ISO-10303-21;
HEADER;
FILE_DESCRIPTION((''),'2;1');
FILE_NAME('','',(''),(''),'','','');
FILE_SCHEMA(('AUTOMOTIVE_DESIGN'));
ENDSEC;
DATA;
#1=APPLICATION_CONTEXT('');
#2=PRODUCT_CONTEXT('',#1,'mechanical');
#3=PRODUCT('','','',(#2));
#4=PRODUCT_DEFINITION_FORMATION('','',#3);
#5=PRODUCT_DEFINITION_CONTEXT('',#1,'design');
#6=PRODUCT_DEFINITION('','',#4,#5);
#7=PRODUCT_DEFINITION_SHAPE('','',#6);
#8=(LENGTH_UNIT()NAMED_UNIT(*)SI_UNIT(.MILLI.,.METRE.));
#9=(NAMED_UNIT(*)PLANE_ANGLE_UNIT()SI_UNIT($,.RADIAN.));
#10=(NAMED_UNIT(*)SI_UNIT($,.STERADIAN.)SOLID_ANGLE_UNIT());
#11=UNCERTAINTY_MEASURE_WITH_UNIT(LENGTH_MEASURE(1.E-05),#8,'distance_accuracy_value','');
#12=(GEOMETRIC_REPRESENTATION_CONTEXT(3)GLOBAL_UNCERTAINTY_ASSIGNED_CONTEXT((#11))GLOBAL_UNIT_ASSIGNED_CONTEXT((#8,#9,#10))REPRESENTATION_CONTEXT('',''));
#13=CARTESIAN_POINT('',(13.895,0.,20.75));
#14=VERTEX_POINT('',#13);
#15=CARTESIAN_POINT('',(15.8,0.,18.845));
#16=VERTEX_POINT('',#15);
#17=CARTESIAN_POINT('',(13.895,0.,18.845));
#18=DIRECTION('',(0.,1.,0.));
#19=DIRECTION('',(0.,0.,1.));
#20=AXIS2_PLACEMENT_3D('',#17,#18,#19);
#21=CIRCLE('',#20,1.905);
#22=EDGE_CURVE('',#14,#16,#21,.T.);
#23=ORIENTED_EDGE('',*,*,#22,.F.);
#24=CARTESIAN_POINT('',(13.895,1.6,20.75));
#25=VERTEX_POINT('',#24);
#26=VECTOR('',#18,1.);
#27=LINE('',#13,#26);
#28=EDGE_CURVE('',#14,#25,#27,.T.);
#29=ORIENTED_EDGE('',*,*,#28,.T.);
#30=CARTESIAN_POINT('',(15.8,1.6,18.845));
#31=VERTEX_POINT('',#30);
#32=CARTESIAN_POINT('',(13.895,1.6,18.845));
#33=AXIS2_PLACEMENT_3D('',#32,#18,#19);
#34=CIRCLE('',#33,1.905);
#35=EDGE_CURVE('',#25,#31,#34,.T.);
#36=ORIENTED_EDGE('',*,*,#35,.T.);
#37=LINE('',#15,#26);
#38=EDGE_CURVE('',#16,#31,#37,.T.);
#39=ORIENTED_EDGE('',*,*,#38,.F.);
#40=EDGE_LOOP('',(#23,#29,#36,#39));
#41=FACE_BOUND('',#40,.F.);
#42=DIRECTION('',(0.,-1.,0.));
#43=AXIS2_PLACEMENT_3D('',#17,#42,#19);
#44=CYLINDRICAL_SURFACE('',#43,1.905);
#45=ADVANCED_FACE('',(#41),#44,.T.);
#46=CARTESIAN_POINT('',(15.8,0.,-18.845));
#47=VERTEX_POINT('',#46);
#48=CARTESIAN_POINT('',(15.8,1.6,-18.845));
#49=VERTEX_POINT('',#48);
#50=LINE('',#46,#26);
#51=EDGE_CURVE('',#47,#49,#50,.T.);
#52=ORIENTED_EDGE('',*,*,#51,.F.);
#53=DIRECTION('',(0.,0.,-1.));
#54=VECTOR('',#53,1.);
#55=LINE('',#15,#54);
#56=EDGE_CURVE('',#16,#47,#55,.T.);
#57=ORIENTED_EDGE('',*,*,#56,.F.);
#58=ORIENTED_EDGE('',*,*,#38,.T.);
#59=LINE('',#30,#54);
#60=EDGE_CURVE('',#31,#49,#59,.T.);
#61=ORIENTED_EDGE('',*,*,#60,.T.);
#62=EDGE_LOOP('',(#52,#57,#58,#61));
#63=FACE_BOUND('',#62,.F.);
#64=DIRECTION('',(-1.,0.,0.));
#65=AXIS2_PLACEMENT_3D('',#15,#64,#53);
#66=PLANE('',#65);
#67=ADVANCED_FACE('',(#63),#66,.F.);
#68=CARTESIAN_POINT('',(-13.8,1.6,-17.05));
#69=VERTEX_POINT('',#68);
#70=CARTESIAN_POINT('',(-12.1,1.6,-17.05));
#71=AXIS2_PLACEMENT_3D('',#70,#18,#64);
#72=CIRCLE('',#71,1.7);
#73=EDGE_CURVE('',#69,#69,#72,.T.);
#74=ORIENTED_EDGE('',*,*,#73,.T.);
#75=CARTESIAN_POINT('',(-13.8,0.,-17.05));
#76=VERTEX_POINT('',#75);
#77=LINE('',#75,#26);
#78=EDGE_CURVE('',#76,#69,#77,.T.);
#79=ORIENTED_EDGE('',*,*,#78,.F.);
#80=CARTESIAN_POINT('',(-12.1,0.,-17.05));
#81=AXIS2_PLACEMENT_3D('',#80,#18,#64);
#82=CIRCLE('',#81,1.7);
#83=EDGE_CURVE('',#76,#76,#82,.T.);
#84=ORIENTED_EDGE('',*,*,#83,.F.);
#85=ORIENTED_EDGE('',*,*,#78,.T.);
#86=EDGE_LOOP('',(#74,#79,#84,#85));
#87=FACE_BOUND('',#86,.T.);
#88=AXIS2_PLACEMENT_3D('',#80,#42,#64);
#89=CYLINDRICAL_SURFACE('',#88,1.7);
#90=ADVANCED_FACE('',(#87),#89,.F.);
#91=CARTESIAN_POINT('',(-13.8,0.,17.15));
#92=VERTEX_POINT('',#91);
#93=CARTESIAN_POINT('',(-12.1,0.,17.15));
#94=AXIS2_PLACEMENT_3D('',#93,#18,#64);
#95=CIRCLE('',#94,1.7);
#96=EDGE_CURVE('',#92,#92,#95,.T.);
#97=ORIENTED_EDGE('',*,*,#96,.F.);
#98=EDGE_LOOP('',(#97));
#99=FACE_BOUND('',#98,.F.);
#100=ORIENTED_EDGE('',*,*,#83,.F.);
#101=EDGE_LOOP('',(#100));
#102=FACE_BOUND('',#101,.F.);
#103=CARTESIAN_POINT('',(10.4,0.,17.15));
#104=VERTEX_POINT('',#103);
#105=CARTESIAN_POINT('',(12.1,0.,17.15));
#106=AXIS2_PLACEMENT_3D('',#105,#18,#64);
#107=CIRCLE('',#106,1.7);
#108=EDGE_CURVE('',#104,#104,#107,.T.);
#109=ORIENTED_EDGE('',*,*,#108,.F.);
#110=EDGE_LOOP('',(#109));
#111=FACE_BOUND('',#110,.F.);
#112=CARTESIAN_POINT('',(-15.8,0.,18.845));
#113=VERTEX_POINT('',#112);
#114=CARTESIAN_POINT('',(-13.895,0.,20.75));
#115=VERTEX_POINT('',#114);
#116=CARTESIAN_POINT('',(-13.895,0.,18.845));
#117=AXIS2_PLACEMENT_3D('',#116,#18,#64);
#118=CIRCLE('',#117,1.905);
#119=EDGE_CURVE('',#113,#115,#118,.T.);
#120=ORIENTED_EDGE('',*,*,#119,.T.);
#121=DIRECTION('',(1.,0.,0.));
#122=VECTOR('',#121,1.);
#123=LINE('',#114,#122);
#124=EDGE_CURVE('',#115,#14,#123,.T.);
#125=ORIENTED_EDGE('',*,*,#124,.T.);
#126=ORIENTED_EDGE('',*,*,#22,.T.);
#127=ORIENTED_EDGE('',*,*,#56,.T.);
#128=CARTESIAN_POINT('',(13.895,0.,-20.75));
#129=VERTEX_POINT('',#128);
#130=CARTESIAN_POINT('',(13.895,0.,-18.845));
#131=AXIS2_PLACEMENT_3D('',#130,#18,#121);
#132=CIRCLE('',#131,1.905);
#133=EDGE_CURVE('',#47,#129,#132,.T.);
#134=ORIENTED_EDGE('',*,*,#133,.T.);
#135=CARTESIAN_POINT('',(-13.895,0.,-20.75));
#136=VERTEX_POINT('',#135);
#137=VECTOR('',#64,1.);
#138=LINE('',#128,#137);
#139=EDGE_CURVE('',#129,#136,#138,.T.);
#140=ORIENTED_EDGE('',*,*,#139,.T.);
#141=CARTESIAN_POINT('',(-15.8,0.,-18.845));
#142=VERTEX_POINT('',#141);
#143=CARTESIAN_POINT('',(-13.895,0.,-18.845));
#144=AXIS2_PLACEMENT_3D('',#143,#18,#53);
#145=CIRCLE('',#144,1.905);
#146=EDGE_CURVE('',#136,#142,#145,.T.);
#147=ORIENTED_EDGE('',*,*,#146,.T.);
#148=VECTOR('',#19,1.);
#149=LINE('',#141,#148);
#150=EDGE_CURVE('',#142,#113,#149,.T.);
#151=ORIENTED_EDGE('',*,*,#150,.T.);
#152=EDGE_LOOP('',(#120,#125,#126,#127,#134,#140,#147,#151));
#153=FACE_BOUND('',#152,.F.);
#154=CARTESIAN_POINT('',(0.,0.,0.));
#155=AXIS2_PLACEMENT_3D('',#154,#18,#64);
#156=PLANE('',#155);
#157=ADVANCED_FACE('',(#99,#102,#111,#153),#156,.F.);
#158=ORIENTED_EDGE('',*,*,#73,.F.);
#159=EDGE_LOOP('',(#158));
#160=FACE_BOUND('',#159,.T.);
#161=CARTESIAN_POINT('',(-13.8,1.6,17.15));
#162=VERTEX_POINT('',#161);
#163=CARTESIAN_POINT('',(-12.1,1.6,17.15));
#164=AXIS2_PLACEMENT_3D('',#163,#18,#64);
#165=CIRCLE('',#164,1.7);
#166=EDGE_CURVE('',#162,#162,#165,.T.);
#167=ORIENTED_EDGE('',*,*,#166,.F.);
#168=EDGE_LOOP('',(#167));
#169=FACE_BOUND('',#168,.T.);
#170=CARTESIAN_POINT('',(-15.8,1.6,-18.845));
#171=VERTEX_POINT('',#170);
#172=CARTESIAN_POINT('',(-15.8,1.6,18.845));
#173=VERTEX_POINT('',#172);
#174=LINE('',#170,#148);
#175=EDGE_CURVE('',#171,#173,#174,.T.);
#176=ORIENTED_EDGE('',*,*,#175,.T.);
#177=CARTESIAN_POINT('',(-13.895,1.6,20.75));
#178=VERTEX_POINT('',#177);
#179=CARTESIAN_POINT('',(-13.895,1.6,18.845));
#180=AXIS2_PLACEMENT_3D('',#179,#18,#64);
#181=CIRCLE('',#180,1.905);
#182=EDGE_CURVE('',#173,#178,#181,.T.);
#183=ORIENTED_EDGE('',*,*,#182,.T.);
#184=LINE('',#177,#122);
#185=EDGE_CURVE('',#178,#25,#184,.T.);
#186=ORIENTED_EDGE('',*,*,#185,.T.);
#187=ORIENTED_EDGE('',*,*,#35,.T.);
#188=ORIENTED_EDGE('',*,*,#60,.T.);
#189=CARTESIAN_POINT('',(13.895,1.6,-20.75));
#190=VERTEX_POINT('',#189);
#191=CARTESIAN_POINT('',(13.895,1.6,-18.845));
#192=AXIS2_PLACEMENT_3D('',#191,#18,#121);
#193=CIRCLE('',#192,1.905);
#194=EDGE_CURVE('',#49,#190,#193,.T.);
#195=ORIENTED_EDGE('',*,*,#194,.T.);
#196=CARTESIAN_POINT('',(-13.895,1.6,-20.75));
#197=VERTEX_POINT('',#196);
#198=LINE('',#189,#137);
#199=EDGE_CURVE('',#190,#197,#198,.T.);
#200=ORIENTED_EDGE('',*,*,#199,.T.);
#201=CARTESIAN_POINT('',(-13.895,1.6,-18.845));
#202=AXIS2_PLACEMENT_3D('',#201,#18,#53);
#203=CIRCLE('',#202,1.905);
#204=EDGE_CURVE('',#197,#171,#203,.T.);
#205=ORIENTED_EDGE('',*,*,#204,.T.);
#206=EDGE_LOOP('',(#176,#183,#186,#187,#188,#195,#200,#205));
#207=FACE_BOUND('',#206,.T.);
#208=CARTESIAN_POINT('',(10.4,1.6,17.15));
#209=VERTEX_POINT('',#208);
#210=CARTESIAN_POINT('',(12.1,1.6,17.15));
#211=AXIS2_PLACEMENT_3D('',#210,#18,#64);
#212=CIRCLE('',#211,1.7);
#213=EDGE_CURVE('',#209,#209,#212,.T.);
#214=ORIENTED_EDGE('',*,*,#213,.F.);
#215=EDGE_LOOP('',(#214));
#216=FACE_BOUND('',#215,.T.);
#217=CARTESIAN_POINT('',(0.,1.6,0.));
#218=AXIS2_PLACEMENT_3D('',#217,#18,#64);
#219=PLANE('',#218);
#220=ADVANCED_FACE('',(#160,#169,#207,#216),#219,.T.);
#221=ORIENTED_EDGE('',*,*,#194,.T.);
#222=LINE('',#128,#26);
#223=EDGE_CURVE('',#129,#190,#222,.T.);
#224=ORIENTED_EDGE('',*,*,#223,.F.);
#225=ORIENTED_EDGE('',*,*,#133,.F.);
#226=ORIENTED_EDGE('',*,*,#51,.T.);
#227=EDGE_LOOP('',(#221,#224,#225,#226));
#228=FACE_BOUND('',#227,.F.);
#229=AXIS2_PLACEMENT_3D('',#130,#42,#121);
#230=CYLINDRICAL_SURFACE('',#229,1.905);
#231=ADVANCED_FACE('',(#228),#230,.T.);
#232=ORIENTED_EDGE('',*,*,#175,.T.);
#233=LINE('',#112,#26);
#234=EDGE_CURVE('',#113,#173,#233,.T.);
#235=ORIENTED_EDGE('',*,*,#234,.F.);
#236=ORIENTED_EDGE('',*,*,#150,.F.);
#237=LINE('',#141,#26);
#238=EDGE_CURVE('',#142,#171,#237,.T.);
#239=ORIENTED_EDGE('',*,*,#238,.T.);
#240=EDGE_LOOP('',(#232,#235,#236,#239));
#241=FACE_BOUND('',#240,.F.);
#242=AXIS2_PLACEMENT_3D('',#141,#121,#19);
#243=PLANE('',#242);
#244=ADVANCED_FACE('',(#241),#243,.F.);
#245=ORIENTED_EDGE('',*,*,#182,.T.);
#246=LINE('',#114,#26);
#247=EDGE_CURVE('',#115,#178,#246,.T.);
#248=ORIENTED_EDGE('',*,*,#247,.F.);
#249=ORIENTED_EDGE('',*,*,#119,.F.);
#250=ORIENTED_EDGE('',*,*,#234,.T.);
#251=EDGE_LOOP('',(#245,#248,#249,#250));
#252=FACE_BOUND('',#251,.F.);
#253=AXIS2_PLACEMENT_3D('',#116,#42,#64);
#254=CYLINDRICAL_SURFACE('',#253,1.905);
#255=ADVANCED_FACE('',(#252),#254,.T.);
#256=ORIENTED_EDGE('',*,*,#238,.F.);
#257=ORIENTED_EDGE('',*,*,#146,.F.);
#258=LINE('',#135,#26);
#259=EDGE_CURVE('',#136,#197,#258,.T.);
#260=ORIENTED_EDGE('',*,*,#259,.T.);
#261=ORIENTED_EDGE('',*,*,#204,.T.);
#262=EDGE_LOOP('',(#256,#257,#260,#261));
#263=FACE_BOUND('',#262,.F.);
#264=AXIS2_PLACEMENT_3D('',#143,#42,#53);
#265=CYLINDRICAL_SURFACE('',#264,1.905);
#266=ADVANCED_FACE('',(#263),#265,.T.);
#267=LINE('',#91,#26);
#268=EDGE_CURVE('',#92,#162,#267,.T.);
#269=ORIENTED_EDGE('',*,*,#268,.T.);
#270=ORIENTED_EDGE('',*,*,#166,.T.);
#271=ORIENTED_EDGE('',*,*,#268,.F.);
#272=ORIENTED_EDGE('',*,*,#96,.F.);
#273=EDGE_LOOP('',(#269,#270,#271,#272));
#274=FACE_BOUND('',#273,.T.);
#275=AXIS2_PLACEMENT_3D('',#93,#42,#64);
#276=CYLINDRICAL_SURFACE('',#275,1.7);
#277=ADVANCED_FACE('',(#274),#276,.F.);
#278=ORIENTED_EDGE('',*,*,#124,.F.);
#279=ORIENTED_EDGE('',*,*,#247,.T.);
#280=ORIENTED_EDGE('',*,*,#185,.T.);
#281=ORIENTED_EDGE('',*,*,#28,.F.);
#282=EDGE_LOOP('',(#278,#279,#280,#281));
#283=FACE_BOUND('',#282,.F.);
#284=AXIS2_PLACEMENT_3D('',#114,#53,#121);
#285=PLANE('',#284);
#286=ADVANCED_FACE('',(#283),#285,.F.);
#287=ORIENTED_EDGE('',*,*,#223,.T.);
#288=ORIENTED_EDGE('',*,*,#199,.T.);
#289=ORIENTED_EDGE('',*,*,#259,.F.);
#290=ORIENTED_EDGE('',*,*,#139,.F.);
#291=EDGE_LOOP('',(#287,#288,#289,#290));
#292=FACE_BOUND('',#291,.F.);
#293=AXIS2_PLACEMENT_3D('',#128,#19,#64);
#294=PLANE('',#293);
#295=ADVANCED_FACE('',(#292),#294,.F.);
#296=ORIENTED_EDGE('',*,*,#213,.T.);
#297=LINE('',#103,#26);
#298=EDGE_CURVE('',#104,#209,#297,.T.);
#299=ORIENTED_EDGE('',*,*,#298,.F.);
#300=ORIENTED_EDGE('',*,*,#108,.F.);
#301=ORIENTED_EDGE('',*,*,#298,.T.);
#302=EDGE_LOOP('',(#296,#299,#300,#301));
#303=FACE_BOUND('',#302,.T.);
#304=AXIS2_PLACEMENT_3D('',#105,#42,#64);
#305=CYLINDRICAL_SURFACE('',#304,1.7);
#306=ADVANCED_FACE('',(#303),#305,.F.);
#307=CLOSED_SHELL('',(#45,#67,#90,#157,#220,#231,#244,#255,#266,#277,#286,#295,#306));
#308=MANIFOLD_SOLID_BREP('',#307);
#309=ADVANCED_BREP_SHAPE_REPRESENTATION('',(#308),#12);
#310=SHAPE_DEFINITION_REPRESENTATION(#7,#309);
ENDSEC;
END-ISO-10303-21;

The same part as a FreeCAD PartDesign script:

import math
import FreeCAD as App
import Part
import Sketcher

V = App.Vector
Q = App.Units.Quantity

doc = App.newDocument("Part")
body = doc.addObject("PartDesign::Body", "Body")

# Sketch on XZ plane
sketch1 = body.newObject("Sketcher::SketchObject", "Sketch")
sketch1.AttachmentSupport = (doc.getObject("XZ_Plane"), [""])
sketch1.MapMode = "FlatFace"
sketch1.addGeometry(Part.ArcOfCircle(Part.Circle(V(-13.9, 18.8, 0), V(0, 0, 1), 1.9), math.radians(90), math.radians(180)), False)
sketch1.addGeometry(Part.LineSegment(V(-13.9, 20.8, 0), V(13.9, 20.8, 0)), False)
sketch1.addGeometry(Part.ArcOfCircle(Part.Circle(V(13.9, 18.8, 0), V(0, 0, 1), 1.9), math.radians(0), math.radians(90)), False)
sketch1.addGeometry(Part.LineSegment(V(15.8, 18.8, 0), V(15.8, -18.8, 0)), False)
sketch1.addGeometry(Part.ArcOfCircle(Part.Circle(V(13.9, -18.8, 0), V(0, 0, 1), 1.9), math.radians(-90), math.radians(0)), False)
sketch1.addGeometry(Part.LineSegment(V(13.9, -20.8, 0), V(-13.9, -20.8, 0)), False)
sketch1.addGeometry(Part.ArcOfCircle(Part.Circle(V(-13.9, -18.8, 0), V(0, 0, 1), 1.9), math.radians(180), math.radians(270)), False)
sketch1.addGeometry(Part.LineSegment(V(-15.8, -18.8, 0), V(-15.8, 18.8, 0)), False)
sketch1.addGeometry(Part.Circle(V(-12.1, -17.1, 0), V(0, 0, 1), 1.7), False)
sketch1.addGeometry(Part.Circle(V(12.1, 17.1, 0), V(0, 0, 1), 1.7), False)
sketch1.addGeometry(Part.Circle(V(-12.1, 17.1, 0), V(0, 0, 1), 1.7), False)
sketch1.addConstraint(Sketcher.Constraint("Tangent", 0, 1, 1, 1))
sketch1.addConstraint(Sketcher.Constraint("Tangent", 1, 2, 2, 2))
sketch1.addConstraint(Sketcher.Constraint("Tangent", 2, 1, 3, 1))
sketch1.addConstraint(Sketcher.Constraint("Tangent", 3, 2, 4, 2))
sketch1.addConstraint(Sketcher.Constraint("Tangent", 4, 1, 5, 1))
sketch1.addConstraint(Sketcher.Constraint("Tangent", 5, 2, 6, 2))
sketch1.addConstraint(Sketcher.Constraint("Tangent", 6, 1, 7, 1))
sketch1.addConstraint(Sketcher.Constraint("Tangent", 7, 2, 0, 2))
sketch1.addConstraint(Sketcher.Constraint("Horizontal", 1))
sketch1.addConstraint(Sketcher.Constraint("Vertical", 3))
sketch1.addConstraint(Sketcher.Constraint("Horizontal", 5))
sketch1.addConstraint(Sketcher.Constraint("Vertical", 7))
sketch1.addConstraint(Sketcher.Constraint("Equal", 0, 2))
sketch1.addConstraint(Sketcher.Constraint("Equal", 2, 4))
sketch1.addConstraint(Sketcher.Constraint("Equal", 4, 6))
sketch1.addConstraint(Sketcher.Constraint("Equal", 8, 9))
sketch1.addConstraint(Sketcher.Constraint("Equal", 9, 10))
sketch1.addConstraint(Sketcher.Constraint("Symmetric", 0, 3, 4, 3, -1, 1))
sketch1.addConstraint(Sketcher.Constraint("Symmetric", 9, 3, 10, 3, -2))
sketch1.addConstraint(Sketcher.Constraint("Vertical", 8, 3, 10, 3))
sketch1.addConstraint(Sketcher.Constraint("Radius", 0, Q("0.075 in")))
sketch1.addConstraint(Sketcher.Constraint("Diameter", 8, 3.4))
sketch1.addConstraint(Sketcher.Constraint("DistanceX", 8, 3, 9, 3, 24.2))
sketch1.addConstraint(Sketcher.Constraint("DistanceY", 8, 3, 9, 3, 34.2))
sketch1.addConstraint(Sketcher.Constraint("DistanceY", 10, 3, 0, 1, 3.6))
sketch1.addConstraint(Sketcher.Constraint("DistanceX", 9, 3, 2, 1, 3.7))
sketch1.addConstraint(Sketcher.Constraint("DistanceY", 4, 1, 8, 3, 3.7))
pad1 = body.newObject("PartDesign::Pad", "Pad")
pad1.Profile = sketch1
pad1.Length = Q("0.0629921 in")
pad1.Reversed = True

doc.recompute()
